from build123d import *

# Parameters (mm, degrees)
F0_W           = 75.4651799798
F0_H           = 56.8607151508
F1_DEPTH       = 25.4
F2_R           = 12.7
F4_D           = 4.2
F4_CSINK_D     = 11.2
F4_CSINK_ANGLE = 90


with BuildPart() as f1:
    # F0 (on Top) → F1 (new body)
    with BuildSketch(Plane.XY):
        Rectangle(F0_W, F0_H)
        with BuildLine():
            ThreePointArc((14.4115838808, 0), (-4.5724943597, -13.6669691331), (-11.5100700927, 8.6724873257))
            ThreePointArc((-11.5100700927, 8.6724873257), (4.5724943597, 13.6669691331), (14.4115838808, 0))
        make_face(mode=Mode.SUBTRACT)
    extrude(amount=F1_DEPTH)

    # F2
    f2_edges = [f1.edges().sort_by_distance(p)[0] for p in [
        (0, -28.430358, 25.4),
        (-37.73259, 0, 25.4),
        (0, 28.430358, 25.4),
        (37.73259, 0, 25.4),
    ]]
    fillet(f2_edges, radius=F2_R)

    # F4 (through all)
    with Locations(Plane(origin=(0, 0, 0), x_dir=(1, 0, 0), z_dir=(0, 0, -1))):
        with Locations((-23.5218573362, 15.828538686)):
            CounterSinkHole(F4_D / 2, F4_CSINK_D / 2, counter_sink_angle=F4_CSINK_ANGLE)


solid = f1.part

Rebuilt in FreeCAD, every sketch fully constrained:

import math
import FreeCAD as App
import Part
import Sketcher
from FreeCAD import Vector
Q = App.Units.Quantity


def edges_at(feature, points):
    """Names of the edges that pass closest to the given points."""
    edges = feature.Shape.Edges
    near = lambda p: min(range(len(edges)), key=lambda i: edges[i].distToShape(Part.Vertex(*p))[0])
    return sorted({f"Edge{near(p) + 1}" for p in points})


def add_polygon(sketch, points):
    """Adds a closed chain of lines whose ends are joined by coincident constraints."""
    first, n = sketch.GeometryCount, len(points)
    for a, b in zip(points, points[1:] + points[:1]):
        sketch.addGeometry(Part.LineSegment(App.Vector(*a, 0), App.Vector(*b, 0)), False)
    for i in range(n):
        sketch.addConstraint(Sketcher.Constraint("Coincident", first + i, 2, first + (i + 1) % n, 1))

doc = App.newDocument("Part")
body = doc.addObject("PartDesign::Body", "Body")

sketch1 = doc.addObject("Sketcher::SketchObject", "Sketch")
body.addObject(sketch1)
sketch1.AttachmentSupport = (doc.XY_Plane, [""])
sketch1.MapMode = "FlatFace"
add_polygon(sketch1, [(-38, 28), (-38, -28), (38, -28), (38, 28)])
sketch1.addGeometry(Part.ArcOfCircle(Part.Circle(Vector(0, 0, 0), Vector(0, 0, 1), 14), math.radians(0), math.radians(143)), False)
sketch1.addGeometry(Part.ArcOfCircle(Part.Circle(Vector(0, 0, 0), Vector(0, 0, 1), 14), math.radians(143), math.radians(360)), False)
sketch1.addConstraint([
    Sketcher.Constraint("Tangent", 4, 1, 5, 2),
    Sketcher.Constraint("Coincident", 5, 1, 4, 2),
    Sketcher.Constraint("Vertical", 0),
    Sketcher.Constraint("Horizontal", 1),
    Sketcher.Constraint("Vertical", 2),
    Sketcher.Constraint("Horizontal", 3),
    Sketcher.Constraint("Coincident", 4, 3, -1, 1),
    Sketcher.Constraint("Symmetric", 0, 2, 2, 2, -1, 1),
    Sketcher.Constraint("PointOnObject", 4, 1, -1),
    Sketcher.Constraint("Radius", 4, Q("14.411584 mm")),
    Sketcher.Constraint("DistanceX", 1, 1, 1, 2, Q("75.46518 mm")),
    Sketcher.Constraint("DistanceY", 0, 2, 0, 1, Q("56.860715 mm")),
    Sketcher.Constraint("DistanceX", 5, 1, -1, 1, Q("11.51007 mm")),
])
pad1 = doc.addObject("PartDesign::Pad", "Pad")
body.addObject(pad1)
pad1.Profile = sketch1
pad1.Length = Q("1 in")
doc.recompute()

fillet = doc.addObject("PartDesign::Fillet", "Fillet")
body.addObject(fillet)
fillet.Base = (pad1, edges_at(pad1, [
    (0, -28.43, 25.4),
    (-37.733, 0, 25.4),
    (0, 28.43, 25.4),
    (37.733, 0, 25.4),
]))
fillet.Radius = Q("0.5 in")

sketch2 = doc.addObject("Sketcher::SketchObject", "Sketch001")
body.addObject(sketch2)
sketch2.AttachmentSupport = (doc.XY_Plane, [""])
sketch2.MapMode = "FlatFace"
sketch2.addGeometry(Part.Circle(Vector(-23.5, -15.8, 0), Vector(0, 0, 1), 2.1), False)
sketch2.addConstraint([
    Sketcher.Constraint("Diameter", 0, Q("4.2 mm")),
    Sketcher.Constraint("DistanceY", 0, 3, -1, 1, Q("15.828539 mm")),
    Sketcher.Constraint("DistanceX", 0, 3, -1, 1, Q("23.521857 mm")),
])
doc.recompute()
hole = doc.addObject("PartDesign::Hole", "Hole")
body.addObject(hole)
hole.Profile = sketch2
hole.ThreadType = "None"
hole.Diameter = 4.2
hole.DepthType = "ThroughAll"
hole.HoleCutType = "Countersink"
hole.HoleCutDiameter = 11.2
hole.HoleCutCountersinkAngle = 90
hole.Reversed = True

doc.recompute()
